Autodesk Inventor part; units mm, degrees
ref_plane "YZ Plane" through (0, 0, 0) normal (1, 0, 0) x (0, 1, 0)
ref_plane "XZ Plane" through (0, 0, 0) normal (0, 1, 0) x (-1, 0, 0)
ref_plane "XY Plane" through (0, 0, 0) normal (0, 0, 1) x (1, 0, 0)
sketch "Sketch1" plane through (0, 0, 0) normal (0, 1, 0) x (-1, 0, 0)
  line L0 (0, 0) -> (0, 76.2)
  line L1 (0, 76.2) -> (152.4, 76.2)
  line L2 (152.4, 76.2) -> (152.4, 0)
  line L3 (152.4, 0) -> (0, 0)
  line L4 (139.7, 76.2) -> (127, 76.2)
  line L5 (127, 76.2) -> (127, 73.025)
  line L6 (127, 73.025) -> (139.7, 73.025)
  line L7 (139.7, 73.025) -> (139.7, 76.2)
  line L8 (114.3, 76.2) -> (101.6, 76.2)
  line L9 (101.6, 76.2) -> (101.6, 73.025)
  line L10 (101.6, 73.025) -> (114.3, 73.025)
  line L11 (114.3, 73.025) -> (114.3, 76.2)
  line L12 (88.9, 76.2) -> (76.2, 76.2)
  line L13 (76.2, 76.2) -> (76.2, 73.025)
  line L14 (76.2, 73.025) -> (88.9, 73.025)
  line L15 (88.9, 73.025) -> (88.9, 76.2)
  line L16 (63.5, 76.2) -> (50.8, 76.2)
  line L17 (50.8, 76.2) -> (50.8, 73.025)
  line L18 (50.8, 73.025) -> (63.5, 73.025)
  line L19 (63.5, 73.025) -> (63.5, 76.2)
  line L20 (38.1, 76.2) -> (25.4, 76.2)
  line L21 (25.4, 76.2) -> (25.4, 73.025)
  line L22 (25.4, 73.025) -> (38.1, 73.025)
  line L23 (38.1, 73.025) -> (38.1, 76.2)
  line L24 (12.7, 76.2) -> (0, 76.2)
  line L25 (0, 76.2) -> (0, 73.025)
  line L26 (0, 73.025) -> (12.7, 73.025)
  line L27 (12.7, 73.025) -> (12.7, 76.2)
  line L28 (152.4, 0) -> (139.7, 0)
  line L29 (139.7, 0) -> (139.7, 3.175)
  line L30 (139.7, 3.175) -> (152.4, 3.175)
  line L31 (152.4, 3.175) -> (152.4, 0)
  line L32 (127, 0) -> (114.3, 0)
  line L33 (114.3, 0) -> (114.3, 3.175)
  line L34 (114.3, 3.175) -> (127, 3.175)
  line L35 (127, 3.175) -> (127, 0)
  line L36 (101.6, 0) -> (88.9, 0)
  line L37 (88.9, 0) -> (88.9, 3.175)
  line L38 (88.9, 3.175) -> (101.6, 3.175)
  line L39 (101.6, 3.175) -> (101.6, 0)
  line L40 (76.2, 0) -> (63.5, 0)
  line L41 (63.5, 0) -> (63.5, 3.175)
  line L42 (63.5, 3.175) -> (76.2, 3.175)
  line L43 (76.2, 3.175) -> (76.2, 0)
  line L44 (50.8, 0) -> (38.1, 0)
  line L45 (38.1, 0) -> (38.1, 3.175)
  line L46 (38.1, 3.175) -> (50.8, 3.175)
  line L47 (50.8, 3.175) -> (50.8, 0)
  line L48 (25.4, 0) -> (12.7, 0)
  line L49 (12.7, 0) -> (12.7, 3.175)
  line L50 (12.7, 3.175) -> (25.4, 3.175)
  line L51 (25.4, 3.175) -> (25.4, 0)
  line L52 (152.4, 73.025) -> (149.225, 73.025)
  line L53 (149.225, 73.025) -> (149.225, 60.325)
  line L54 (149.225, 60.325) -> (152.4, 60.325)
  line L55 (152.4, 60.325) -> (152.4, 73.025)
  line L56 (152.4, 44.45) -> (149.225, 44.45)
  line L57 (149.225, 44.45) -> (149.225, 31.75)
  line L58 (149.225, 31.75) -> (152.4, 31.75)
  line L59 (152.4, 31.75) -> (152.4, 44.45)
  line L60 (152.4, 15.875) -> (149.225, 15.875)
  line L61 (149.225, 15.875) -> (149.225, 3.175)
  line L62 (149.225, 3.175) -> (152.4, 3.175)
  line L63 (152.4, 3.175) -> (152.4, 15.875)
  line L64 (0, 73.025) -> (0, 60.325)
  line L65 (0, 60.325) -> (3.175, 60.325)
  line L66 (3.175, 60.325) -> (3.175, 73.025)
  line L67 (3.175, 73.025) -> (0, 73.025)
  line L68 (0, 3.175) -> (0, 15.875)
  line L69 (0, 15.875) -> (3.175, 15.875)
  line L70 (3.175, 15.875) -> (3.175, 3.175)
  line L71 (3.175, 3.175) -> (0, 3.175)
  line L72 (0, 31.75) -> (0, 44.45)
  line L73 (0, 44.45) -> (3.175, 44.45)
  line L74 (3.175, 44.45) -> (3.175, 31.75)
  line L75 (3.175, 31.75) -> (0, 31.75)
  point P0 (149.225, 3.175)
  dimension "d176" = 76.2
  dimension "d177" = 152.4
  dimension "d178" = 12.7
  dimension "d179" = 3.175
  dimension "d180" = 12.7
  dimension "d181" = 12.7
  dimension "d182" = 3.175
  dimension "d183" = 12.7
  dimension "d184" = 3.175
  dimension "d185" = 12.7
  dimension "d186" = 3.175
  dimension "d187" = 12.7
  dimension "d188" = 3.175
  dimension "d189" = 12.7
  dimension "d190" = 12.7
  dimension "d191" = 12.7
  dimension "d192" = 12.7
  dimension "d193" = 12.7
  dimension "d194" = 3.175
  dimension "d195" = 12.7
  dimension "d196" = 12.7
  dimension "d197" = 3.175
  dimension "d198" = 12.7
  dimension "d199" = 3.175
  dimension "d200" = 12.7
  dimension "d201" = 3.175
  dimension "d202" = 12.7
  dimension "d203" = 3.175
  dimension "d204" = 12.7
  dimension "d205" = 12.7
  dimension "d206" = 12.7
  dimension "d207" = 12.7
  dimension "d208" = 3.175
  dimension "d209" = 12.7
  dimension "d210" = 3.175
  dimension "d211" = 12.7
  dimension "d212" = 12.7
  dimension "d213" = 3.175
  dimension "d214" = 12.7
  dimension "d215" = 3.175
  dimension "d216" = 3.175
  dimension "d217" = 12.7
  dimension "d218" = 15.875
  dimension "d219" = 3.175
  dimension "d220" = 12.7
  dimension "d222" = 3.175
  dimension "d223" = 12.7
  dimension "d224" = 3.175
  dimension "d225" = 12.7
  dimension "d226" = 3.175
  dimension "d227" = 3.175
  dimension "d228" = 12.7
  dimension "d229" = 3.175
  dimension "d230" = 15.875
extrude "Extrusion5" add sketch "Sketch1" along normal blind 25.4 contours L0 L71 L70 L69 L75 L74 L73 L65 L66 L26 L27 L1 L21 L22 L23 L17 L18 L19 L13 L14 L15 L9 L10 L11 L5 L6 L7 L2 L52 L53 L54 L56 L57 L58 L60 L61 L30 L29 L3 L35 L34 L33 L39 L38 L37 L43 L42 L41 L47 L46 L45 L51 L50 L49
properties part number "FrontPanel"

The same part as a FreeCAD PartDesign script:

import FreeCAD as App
import Part
import Sketcher
from FreeCAD import Vector
Q = App.Units.Quantity

doc = App.newDocument("Part")
body = doc.addObject("PartDesign::Body", "Body")

sketch1 = doc.addObject("Sketcher::SketchObject", "Sketch")
body.addObject(sketch1)
sketch1.AttachmentSupport = (doc.XZ_Plane, [""])
sketch1.MapMode = "FlatFace"
sketch1.addGeometry(Part.LineSegment(Vector(0, 3.2, 0), Vector(0, 0, 0)), False)
sketch1.addGeometry(Part.LineSegment(Vector(0, 0, 0), Vector(-12.7, 0, 0)), False)
sketch1.addGeometry(Part.LineSegment(Vector(-12.7, 0, 0), Vector(-12.7, 3.2, 0)), False)
sketch1.addGeometry(Part.LineSegment(Vector(-12.7, 3.2, 0), Vector(-25.4, 3.2, 0)), False)
sketch1.addGeometry(Part.LineSegment(Vector(-25.4, 3.2, 0), Vector(-25.4, 0, 0)), False)
sketch1.addGeometry(Part.LineSegment(Vector(-25.4, 0, 0), Vector(-38.1, 0, 0)), False)
sketch1.addGeometry(Part.LineSegment(Vector(-38.1, 0, 0), Vector(-38.1, 3.2, 0)), False)
sketch1.addGeometry(Part.LineSegment(Vector(-38.1, 3.2, 0), Vector(-50.8, 3.2, 0)), False)
sketch1.addGeometry(Part.LineSegment(Vector(-50.8, 3.2, 0), Vector(-50.8, 0, 0)), False)
sketch1.addGeometry(Part.LineSegment(Vector(-50.8, 0, 0), Vector(-63.5, 0, 0)), False)
sketch1.addGeometry(Part.LineSegment(Vector(-63.5, 0, 0), Vector(-63.5, 3.2, 0)), False)
sketch1.addGeometry(Part.LineSegment(Vector(-63.5, 3.2, 0), Vector(-76.2, 3.2, 0)), False)
sketch1.addGeometry(Part.LineSegment(Vector(-76.2, 3.2, 0), Vector(-76.2, 0, 0)), False)
sketch1.addGeometry(Part.LineSegment(Vector(-76.2, 0, 0), Vector(-88.9, 0, 0)), False)
sketch1.addGeometry(Part.LineSegment(Vector(-88.9, 0, 0), Vector(-88.9, 3.2, 0)), False)
sketch1.addGeometry(Part.LineSegment(Vector(-88.9, 3.2, 0), Vector(-101.6, 3.2, 0)), False)
sketch1.addGeometry(Part.LineSegment(Vector(-101.6, 3.2, 0), Vector(-101.6, 0, 0)), False)
sketch1.addGeometry(Part.LineSegment(Vector(-101.6, 0, 0), Vector(-114.3, 0, 0)), False)
sketch1.addGeometry(Part.LineSegment(Vector(-114.3, 0, 0), Vector(-114.3, 3.2, 0)), False)
sketch1.addGeometry(Part.LineSegment(Vector(-114.3, 3.2, 0), Vector(-127, 3.2, 0)), False)
sketch1.addGeometry(Part.LineSegment(Vector(-127, 3.2, 0), Vector(-127, 0, 0)), False)
sketch1.addGeometry(Part.LineSegment(Vector(-127, 0, 0), Vector(-139.7, 0, 0)), False)
sketch1.addGeometry(Part.LineSegment(Vector(-139.7, 0, 0), Vector(-139.7, 3.2, 0)), False)
sketch1.addGeometry(Part.LineSegment(Vector(-139.7, 3.2, 0), Vector(-149.2, 3.2, 0)), False)
sketch1.addGeometry(Part.LineSegment(Vector(-149.2, 3.2, 0), Vector(-149.2, 15.9, 0)), False)
sketch1.addGeometry(Part.LineSegment(Vector(-149.2, 15.9, 0), Vector(-152.4, 15.9, 0)), False)
sketch1.addGeometry(Part.LineSegment(Vector(-152.4, 15.9, 0), Vector(-152.4, 31.8, 0)), False)
sketch1.addGeometry(Part.LineSegment(Vector(-152.4, 31.8, 0), Vector(-149.2, 31.8, 0)), False)
sketch1.addGeometry(Part.LineSegment(Vector(-149.2, 31.8, 0), Vector(-149.2, 44.5, 0)), False)
sketch1.addGeometry(Part.LineSegment(Vector(-149.2, 44.5, 0), Vector(-152.4, 44.5, 0)), False)
sketch1.addGeometry(Part.LineSegment(Vector(-152.4, 44.5, 0), Vector(-152.4, 60.3, 0)), False)
sketch1.addGeometry(Part.LineSegment(Vector(-152.4, 60.3, 0), Vector(-149.2, 60.3, 0)), False)
sketch1.addGeometry(Part.LineSegment(Vector(-149.2, 60.3, 0), Vector(-149.2, 73, 0)), False)
sketch1.addGeometry(Part.LineSegment(Vector(-149.2, 73, 0), Vector(-152.4, 73, 0)), False)
sketch1.addGeometry(Part.LineSegment(Vector(-152.4, 73, 0), Vector(-152.4, 76.2, 0)), False)
sketch1.addGeometry(Part.LineSegment(Vector(-152.4, 76.2, 0), Vector(-139.7, 76.2, 0)), False)
sketch1.addGeometry(Part.LineSegment(Vector(-139.7, 76.2, 0), Vector(-139.7, 73, 0)), False)
sketch1.addGeometry(Part.LineSegment(Vector(-139.7, 73, 0), Vector(-127, 73, 0)), False)
sketch1.addGeometry(Part.LineSegment(Vector(-127, 73, 0), Vector(-127, 76.2, 0)), False)
sketch1.addGeometry(Part.LineSegment(Vector(-127, 76.2, 0), Vector(-114.3, 76.2, 0)), False)
sketch1.addGeometry(Part.LineSegment(Vector(-114.3, 76.2, 0), Vector(-114.3, 73, 0)), False)
sketch1.addGeometry(Part.LineSegment(Vector(-114.3, 73, 0), Vector(-101.6, 73, 0)), False)
sketch1.addGeometry(Part.LineSegment(Vector(-101.6, 73, 0), Vector(-101.6, 76.2, 0)), False)
sketch1.addGeometry(Part.LineSegment(Vector(-101.6, 76.2, 0), Vector(-88.9, 76.2, 0)), False)
sketch1.addGeometry(Part.LineSegment(Vector(-88.9, 76.2, 0), Vector(-88.9, 73, 0)), False)
sketch1.addGeometry(Part.LineSegment(Vector(-88.9, 73, 0), Vector(-76.2, 73, 0)), False)
sketch1.addGeometry(Part.LineSegment(Vector(-76.2, 73, 0), Vector(-76.2, 76.2, 0)), False)
sketch1.addGeometry(Part.LineSegment(Vector(-76.2, 76.2, 0), Vector(-63.5, 76.2, 0)), False)
sketch1.addGeometry(Part.LineSegment(Vector(-63.5, 76.2, 0), Vector(-63.5, 73, 0)), False)
sketch1.addGeometry(Part.LineSegment(Vector(-63.5, 73, 0), Vector(-50.8, 73, 0)), False)
sketch1.addGeometry(Part.LineSegment(Vector(-50.8, 73, 0), Vector(-50.8, 76.2, 0)), False)
sketch1.addGeometry(Part.LineSegment(Vector(-50.8, 76.2, 0), Vector(-38.1, 76.2, 0)), False)
sketch1.addGeometry(Part.LineSegment(Vector(-38.1, 76.2, 0), Vector(-38.1, 73, 0)), False)
sketch1.addGeometry(Part.LineSegment(Vector(-38.1, 73, 0), Vector(-25.4, 73, 0)), False)
sketch1.addGeometry(Part.LineSegment(Vector(-25.4, 73, 0), Vector(-25.4, 76.2, 0)), False)
sketch1.addGeometry(Part.LineSegment(Vector(-25.4, 76.2, 0), Vector(-12.7, 76.2, 0)), False)
sketch1.addGeometry(Part.LineSegment(Vector(-12.7, 76.2, 0), Vector(-12.7, 73, 0)), False)
sketch1.addGeometry(Part.LineSegment(Vector(-12.7, 73, 0), Vector(-3.2, 73, 0)), False)
sketch1.addGeometry(Part.LineSegment(Vector(-3.2, 73, 0), Vector(-3.2, 60.3, 0)), False)
sketch1.addGeometry(Part.LineSegment(Vector(-3.2, 60.3, 0), Vector(0, 60.3, 0)), False)
sketch1.addGeometry(Part.LineSegment(Vector(0, 60.3, 0), Vector(0, 44.5, 0)), False)
sketch1.addGeometry(Part.LineSegment(Vector(0, 44.5, 0), Vector(-3.2, 44.5, 0)), False)
sketch1.addGeometry(Part.LineSegment(Vector(-3.2, 44.5, 0), Vector(-3.2, 31.8, 0)), False)
sketch1.addGeometry(Part.LineSegment(Vector(-3.2, 31.8, 0), Vector(0, 31.8, 0)), False)
sketch1.addGeometry(Part.LineSegment(Vector(0, 31.8, 0), Vector(0, 15.9, 0)), False)
sketch1.addGeometry(Part.LineSegment(Vector(0, 15.9, 0), Vector(-3.2, 15.9, 0)), False)
sketch1.addGeometry(Part.LineSegment(Vector(-3.2, 15.9, 0), Vector(-3.2, 3.2, 0)), False)
sketch1.addGeometry(Part.LineSegment(Vector(-3.2, 3.2, 0), Vector(0, 3.2, 0)), False)
sketch1.addConstraint(Sketcher.Constraint("Coincident", 0, 2, 1, 1))
sketch1.addConstraint(Sketcher.Constraint("Coincident", 1, 2, 2, 1))
sketch1.addConstraint(Sketcher.Constraint("Coincident", 2, 2, 3, 1))
sketch1.addConstraint(Sketcher.Constraint("Coincident", 3, 2, 4, 1))
sketch1.addConstraint(Sketcher.Constraint("Coincident", 4, 2, 5, 1))
sketch1.addConstraint(Sketcher.Constraint("Coincident", 5, 2, 6, 1))
sketch1.addConstraint(Sketcher.Constraint("Coincident", 6, 2, 7, 1))
sketch1.addConstraint(Sketcher.Constraint("Coincident", 7, 2, 8, 1))
sketch1.addConstraint(Sketcher.Constraint("Coincident", 8, 2, 9, 1))
sketch1.addConstraint(Sketcher.Constraint("Coincident", 9, 2, 10, 1))
sketch1.addConstraint(Sketcher.Constraint("Coincident", 10, 2, 11, 1))
sketch1.addConstraint(Sketcher.Constraint("Coincident", 11, 2, 12, 1))
sketch1.addConstraint(Sketcher.Constraint("Coincident", 12, 2, 13, 1))
sketch1.addConstraint(Sketcher.Constraint("Coincident", 13, 2, 14, 1))
sketch1.addConstraint(Sketcher.Constraint("Coincident", 14, 2, 15, 1))
sketch1.addConstraint(Sketcher.Constraint("Coincident", 15, 2, 16, 1))
sketch1.addConstraint(Sketcher.Constraint("Coincident", 16, 2, 17, 1))
sketch1.addConstraint(Sketcher.Constraint("Coincident", 17, 2, 18, 1))
sketch1.addConstraint(Sketcher.Constraint("Coincident", 18, 2, 19, 1))
sketch1.addConstraint(Sketcher.Constraint("Coincident", 19, 2, 20, 1))
sketch1.addConstraint(Sketcher.Constraint("Coincident", 20, 2, 21, 1))
sketch1.addConstraint(Sketcher.Constraint("Coincident", 21, 2, 22, 1))
sketch1.addConstraint(Sketcher.Constraint("Coincident", 22, 2, 23, 1))
sketch1.addConstraint(Sketcher.Constraint("Coincident", 23, 2, 24, 1))
sketch1.addConstraint(Sketcher.Constraint("Coincident", 24, 2, 25, 1))
sketch1.addConstraint(Sketcher.Constraint("Coincident", 25, 2, 26, 1))
sketch1.addConstraint(Sketcher.Constraint("Coincident", 26, 2, 27, 1))
sketch1.addConstraint(Sketcher.Constraint("Coincident", 27, 2, 28, 1))
sketch1.addConstraint(Sketcher.Constraint("Coincident", 28, 2, 29, 1))
sketch1.addConstraint(Sketcher.Constraint("Coincident", 29, 2, 30, 1))
sketch1.addConstraint(Sketcher.Constraint("Coincident", 30, 2, 31, 1))
sketch1.addConstraint(Sketcher.Constraint("Coincident", 31, 2, 32, 1))
sketch1.addConstraint(Sketcher.Constraint("Coincident", 32, 2, 33, 1))
sketch1.addConstraint(Sketcher.Constraint("Coincident", 33, 2, 34, 1))
sketch1.addConstraint(Sketcher.Constraint("Coincident", 34, 2, 35, 1))
sketch1.addConstraint(Sketcher.Constraint("Coincident", 35, 2, 36, 1))
sketch1.addConstraint(Sketcher.Constraint("Coincident", 36, 2, 37, 1))
sketch1.addConstraint(Sketcher.Constraint("Coincident", 37, 2, 38, 1))
sketch1.addConstraint(Sketcher.Constraint("Coincident", 38, 2, 39, 1))
sketch1.addConstraint(Sketcher.Constraint("Coincident", 39, 2, 40, 1))
sketch1.addConstraint(Sketcher.Constraint("Coincident", 40, 2, 41, 1))
sketch1.addConstraint(Sketcher.Constraint("Coincident", 41, 2, 42, 1))
sketch1.addConstraint(Sketcher.Constraint("Coincident", 42, 2, 43, 1))
sketch1.addConstraint(Sketcher.Constraint("Coincident", 43, 2, 44, 1))
sketch1.addConstraint(Sketcher.Constraint("Coincident", 44, 2, 45, 1))
sketch1.addConstraint(Sketcher.Constraint("Coincident", 45, 2, 46, 1))
sketch1.addConstraint(Sketcher.Constraint("Coincident", 46, 2, 47, 1))
sketch1.addConstraint(Sketcher.Constraint("Coincident", 47, 2, 48, 1))
sketch1.addConstraint(Sketcher.Constraint("Coincident", 48, 2, 49, 1))
sketch1.addConstraint(Sketcher.Constraint("Coincident", 49, 2, 50, 1))
sketch1.addConstraint(Sketcher.Constraint("Coincident", 50, 2, 51, 1))
sketch1.addConstraint(Sketcher.Constraint("Coincident", 51, 2, 52, 1))
sketch1.addConstraint(Sketcher.Constraint("Coincident", 52, 2, 53, 1))
sketch1.addConstraint(Sketcher.Constraint("Coincident", 53, 2, 54, 1))
sketch1.addConstraint(Sketcher.Constraint("Coincident", 54, 2, 55, 1))
sketch1.addConstraint(Sketcher.Constraint("Coincident", 55, 2, 56, 1))
sketch1.addConstraint(Sketcher.Constraint("Coincident", 56, 2, 57, 1))
sketch1.addConstraint(Sketcher.Constraint("Coincident", 57, 2, 58, 1))
sketch1.addConstraint(Sketcher.Constraint("Coincident", 58, 2, 59, 1))
sketch1.addConstraint(Sketcher.Constraint("Coincident", 59, 2, 60, 1))
sketch1.addConstraint(Sketcher.Constraint("Coincident", 60, 2, 61, 1))
sketch1.addConstraint(Sketcher.Constraint("Coincident", 61, 2, 62, 1))
sketch1.addConstraint(Sketcher.Constraint("Coincident", 62, 2, 63, 1))
sketch1.addConstraint(Sketcher.Constraint("Coincident", 63, 2, 64, 1))
sketch1.addConstraint(Sketcher.Constraint("Coincident", 64, 2, 65, 1))
sketch1.addConstraint(Sketcher.Constraint("Coincident", 65, 2, 66, 1))
sketch1.addConstraint(Sketcher.Constraint("Coincident", 66, 2, 67, 1))
sketch1.addConstraint(Sketcher.Constraint("Coincident", 67, 2, 0, 1))
sketch1.addConstraint(Sketcher.Constraint("Vertical", 0))
sketch1.addConstraint(Sketcher.Constraint("Horizontal", 1))
sketch1.addConstraint(Sketcher.Constraint("Vertical", 2))
sketch1.addConstraint(Sketcher.Constraint("Horizontal", 3))
sketch1.addConstraint(Sketcher.Constraint("Vertical", 4))
sketch1.addConstraint(Sketcher.Constraint("Horizontal", 5))
sketch1.addConstraint(Sketcher.Constraint("Vertical", 6))
sketch1.addConstraint(Sketcher.Constraint("Horizontal", 7))
sketch1.addConstraint(Sketcher.Constraint("Vertical", 8))
sketch1.addConstraint(Sketcher.Constraint("Horizontal", 9))
sketch1.addConstraint(Sketcher.Constraint("Vertical", 10))
sketch1.addConstraint(Sketcher.Constraint("Horizontal", 11))
sketch1.addConstraint(Sketcher.Constraint("Vertical", 12))
sketch1.addConstraint(Sketcher.Constraint("Horizontal", 13))
sketch1.addConstraint(Sketcher.Constraint("Vertical", 14))
sketch1.addConstraint(Sketcher.Constraint("Horizontal", 15))
sketch1.addConstraint(Sketcher.Constraint("Vertical", 16))
sketch1.addConstraint(Sketcher.Constraint("Horizontal", 17))
sketch1.addConstraint(Sketcher.Constraint("Vertical", 18))
sketch1.addConstraint(Sketcher.Constraint("Horizontal", 19))
sketch1.addConstraint(Sketcher.Constraint("Vertical", 20))
sketch1.addConstraint(Sketcher.Constraint("Horizontal", 21))
sketch1.addConstraint(Sketcher.Constraint("Vertical", 22))
sketch1.addConstraint(Sketcher.Constraint("Horizontal", 23))
sketch1.addConstraint(Sketcher.Constraint("Vertical", 24))
sketch1.addConstraint(Sketcher.Constraint("Horizontal", 25))
sketch1.addConstraint(Sketcher.Constraint("Vertical", 26))
sketch1.addConstraint(Sketcher.Constraint("Horizontal", 27))
sketch1.addConstraint(Sketcher.Constraint("Vertical", 28))
sketch1.addConstraint(Sketcher.Constraint("Horizontal", 29))
sketch1.addConstraint(Sketcher.Constraint("Vertical", 30))
sketch1.addConstraint(Sketcher.Constraint("Horizontal", 31))
sketch1.addConstraint(Sketcher.Constraint("Vertical", 32))
sketch1.addConstraint(Sketcher.Constraint("Horizontal", 33))
sketch1.addConstraint(Sketcher.Constraint("Vertical", 34))
sketch1.addConstraint(Sketcher.Constraint("Horizontal", 35))
sketch1.addConstraint(Sketcher.Constraint("Vertical", 36))
sketch1.addConstraint(Sketcher.Constraint("Horizontal", 37))
sketch1.addConstraint(Sketcher.Constraint("Vertical", 38))
sketch1.addConstraint(Sketcher.Constraint("Horizontal", 39))
sketch1.addConstraint(Sketcher.Constraint("Vertical", 40))
sketch1.addConstraint(Sketcher.Constraint("Horizontal", 41))
sketch1.addConstraint(Sketcher.Constraint("Vertical", 42))
sketch1.addConstraint(Sketcher.Constraint("Horizontal", 43))
sketch1.addConstraint(Sketcher.Constraint("Vertical", 44))
sketch1.addConstraint(Sketcher.Constraint("Horizontal", 45))
sketch1.addConstraint(Sketcher.Constraint("Vertical", 46))
sketch1.addConstraint(Sketcher.Constraint("Horizontal", 47))
sketch1.addConstraint(Sketcher.Constraint("Vertical", 48))
sketch1.addConstraint(Sketcher.Constraint("Horizontal", 49))
sketch1.addConstraint(Sketcher.Constraint("Vertical", 50))
sketch1.addConstraint(Sketcher.Constraint("Horizontal", 51))
sketch1.addConstraint(Sketcher.Constraint("Vertical", 52))
sketch1.addConstraint(Sketcher.Constraint("Horizontal", 53))
sketch1.addConstraint(Sketcher.Constraint("Vertical", 54))
sketch1.addConstraint(Sketcher.Constraint("Horizontal", 55))
sketch1.addConstraint(Sketcher.Constraint("Vertical", 56))
sketch1.addConstraint(Sketcher.Constraint("Horizontal", 57))
sketch1.addConstraint(Sketcher.Constraint("Vertical", 58))
sketch1.addConstraint(Sketcher.Constraint("Horizontal", 59))
sketch1.addConstraint(Sketcher.Constraint("Vertical", 60))
sketch1.addConstraint(Sketcher.Constraint("Horizontal", 61))
sketch1.addConstraint(Sketcher.Constraint("Vertical", 62))
sketch1.addConstraint(Sketcher.Constraint("Horizontal", 63))
sketch1.addConstraint(Sketcher.Constraint("Vertical", 64))
sketch1.addConstraint(Sketcher.Constraint("Horizontal", 65))
sketch1.addConstraint(Sketcher.Constraint("Vertical", 66))
sketch1.addConstraint(Sketcher.Constraint("Horizontal", 67))
sketch1.addConstraint(Sketcher.Constraint("Coincident", 0, 2, -1, 1))
sketch1.addConstraint(Sketcher.Constraint("PointOnObject", 4, 2, -1))
sketch1.addConstraint(Sketcher.Constraint("PointOnObject", 8, 2, -1))
sketch1.addConstraint(Sketcher.Constraint("PointOnObject", 12, 2, -1))
sketch1.addConstraint(Sketcher.Constraint("PointOnObject", 16, 2, -1))
sketch1.addConstraint(Sketcher.Constraint("PointOnObject", 20, 2, -1))
sketch1.addConstraint(Sketcher.Constraint("PointOnObject", 59, 2, -2))
sketch1.addConstraint(Sketcher.Constraint("PointOnObject", 63, 2, -2))
sketch1.addConstraint(Sketcher.Constraint("Horizontal", 3, 2, 6, 2))
sketch1.addConstraint(Sketcher.Constraint("Horizontal", 7, 2, 10, 2))
sketch1.addConstraint(Sketcher.Constraint("Horizontal", 11, 2, 14, 2))
sketch1.addConstraint(Sketcher.Constraint("Horizontal", 15, 2, 18, 2))
sketch1.addConstraint(Sketcher.Constraint("Horizontal", 19, 2, 22, 2))
sketch1.addConstraint(Sketcher.Constraint("Horizontal", 33, 2, 36, 2))
sketch1.addConstraint(Sketcher.Constraint("Horizontal", 35, 2, 38, 2))
sketch1.addConstraint(Sketcher.Constraint("Horizontal", 37, 2, 40, 2))
sketch1.addConstraint(Sketcher.Constraint("Horizontal", 39, 2, 42, 2))
sketch1.addConstraint(Sketcher.Constraint("Horizontal", 41, 2, 44, 2))
sketch1.addConstraint(Sketcher.Constraint("Horizontal", 43, 2, 46, 2))
sketch1.addConstraint(Sketcher.Constraint("Horizontal", 45, 2, 48, 2))
sketch1.addConstraint(Sketcher.Constraint("Horizontal", 47, 2, 50, 2))
sketch1.addConstraint(Sketcher.Constraint("Horizontal", 49, 2, 52, 2))
sketch1.addConstraint(Sketcher.Constraint("Horizontal", 51, 2, 54, 2))
sketch1.addConstraint(Sketcher.Constraint("Horizontal", 53, 2, 56, 2))
sketch1.addConstraint(Sketcher.Constraint("Horizontal", 31, 2, 58, 2))
sketch1.addConstraint(Sketcher.Constraint("Horizontal", 29, 2, 60, 2))
sketch1.addConstraint(Sketcher.Constraint("Horizontal", 27, 2, 62, 2))
sketch1.addConstraint(Sketcher.Constraint("Horizontal", 25, 2, 64, 2))
sketch1.addConstraint(Sketcher.Constraint("Horizontal", 23, 2, 66, 2))
sketch1.addConstraint(Sketcher.Constraint("Vertical", 24, 2, 27, 2))
sketch1.addConstraint(Sketcher.Constraint("Vertical", 26, 2, 29, 2))
sketch1.addConstraint(Sketcher.Constraint("Vertical", 28, 2, 31, 2))
sketch1.addConstraint(Sketcher.Constraint("Vertical", 30, 2, 33, 2))
sketch1.addConstraint(Sketcher.Constraint("Vertical", 22, 2, 35, 2))
sketch1.addConstraint(Sketcher.Constraint("Vertical", 20, 2, 37, 2))
sketch1.addConstraint(Sketcher.Constraint("Vertical", 18, 2, 39, 2))
sketch1.addConstraint(Sketcher.Constraint("Vertical", 16, 2, 41, 2))
sketch1.addConstraint(Sketcher.Constraint("Vertical", 14, 2, 43, 2))
sketch1.addConstraint(Sketcher.Constraint("Vertical", 12, 2, 45, 2))
sketch1.addConstraint(Sketcher.Constraint("Vertical", 10, 2, 47, 2))
sketch1.addConstraint(Sketcher.Constraint("Vertical", 8, 2, 49, 2))
sketch1.addConstraint(Sketcher.Constraint("Vertical", 6, 2, 51, 2))
sketch1.addConstraint(Sketcher.Constraint("Vertical", 4, 2, 53, 2))
sketch1.addConstraint(Sketcher.Constraint("Vertical", 2, 2, 55, 2))
sketch1.addConstraint(Sketcher.Constraint("Vertical", 58, 2, 61, 2))
sketch1.addConstraint(Sketcher.Constraint("Vertical", 62, 2, 65, 2))
sketch1.addConstraint(Sketcher.Constraint("Equal", 1, 3))
sketch1.addConstraint(Sketcher.Constraint("Equal", 3, 5))
sketch1.addConstraint(Sketcher.Constraint("Equal", 5, 7))
sketch1.addConstraint(Sketcher.Constraint("Equal", 7, 9))
sketch1.addConstraint(Sketcher.Constraint("Equal", 9, 11))
sketch1.addConstraint(Sketcher.Constraint("Equal", 11, 13))
sketch1.addConstraint(Sketcher.Constraint("Equal", 13, 15))
sketch1.addConstraint(Sketcher.Constraint("Equal", 15, 17))
sketch1.addConstraint(Sketcher.Constraint("Equal", 17, 19))
sketch1.addConstraint(Sketcher.Constraint("Equal", 19, 21))
sketch1.addConstraint(Sketcher.Constraint("Equal", 21, 35))
sketch1.addConstraint(Sketcher.Constraint("Equal", 23, 57))
sketch1.addConstraint(Sketcher.Constraint("Equal", 67, 0))
sketch1.addConstraint(Sketcher.Constraint("Equal", 55, 24))
sketch1.addConstraint(Sketcher.Constraint("Equal", 24, 28))
sketch1.addConstraint(Sketcher.Constraint("Equal", 26, 30))
sketch1.addConstraint(Sketcher.Constraint("Equal", 28, 32))
sketch1.addConstraint(Sketcher.Constraint("Equal", 22, 34))
sketch1.addConstraint(Sketcher.Constraint("DistanceX", 1, 2, 1, 1, Q("0.5 in")))
sketch1.addConstraint(Sketcher.Constraint("DistanceY", -1, 1, 34, 2, Q("3 in")))
sketch1.addConstraint(Sketcher.Constraint("DistanceX", 25, 2, 25, 1, Q("0.125 in")))
pad1 = doc.addObject("PartDesign::Pad", "Pad")
body.addObject(pad1)
pad1.Profile = sketch1
pad1.Length = Q("1 in")
pad1.Reversed = True

doc.recompute()
